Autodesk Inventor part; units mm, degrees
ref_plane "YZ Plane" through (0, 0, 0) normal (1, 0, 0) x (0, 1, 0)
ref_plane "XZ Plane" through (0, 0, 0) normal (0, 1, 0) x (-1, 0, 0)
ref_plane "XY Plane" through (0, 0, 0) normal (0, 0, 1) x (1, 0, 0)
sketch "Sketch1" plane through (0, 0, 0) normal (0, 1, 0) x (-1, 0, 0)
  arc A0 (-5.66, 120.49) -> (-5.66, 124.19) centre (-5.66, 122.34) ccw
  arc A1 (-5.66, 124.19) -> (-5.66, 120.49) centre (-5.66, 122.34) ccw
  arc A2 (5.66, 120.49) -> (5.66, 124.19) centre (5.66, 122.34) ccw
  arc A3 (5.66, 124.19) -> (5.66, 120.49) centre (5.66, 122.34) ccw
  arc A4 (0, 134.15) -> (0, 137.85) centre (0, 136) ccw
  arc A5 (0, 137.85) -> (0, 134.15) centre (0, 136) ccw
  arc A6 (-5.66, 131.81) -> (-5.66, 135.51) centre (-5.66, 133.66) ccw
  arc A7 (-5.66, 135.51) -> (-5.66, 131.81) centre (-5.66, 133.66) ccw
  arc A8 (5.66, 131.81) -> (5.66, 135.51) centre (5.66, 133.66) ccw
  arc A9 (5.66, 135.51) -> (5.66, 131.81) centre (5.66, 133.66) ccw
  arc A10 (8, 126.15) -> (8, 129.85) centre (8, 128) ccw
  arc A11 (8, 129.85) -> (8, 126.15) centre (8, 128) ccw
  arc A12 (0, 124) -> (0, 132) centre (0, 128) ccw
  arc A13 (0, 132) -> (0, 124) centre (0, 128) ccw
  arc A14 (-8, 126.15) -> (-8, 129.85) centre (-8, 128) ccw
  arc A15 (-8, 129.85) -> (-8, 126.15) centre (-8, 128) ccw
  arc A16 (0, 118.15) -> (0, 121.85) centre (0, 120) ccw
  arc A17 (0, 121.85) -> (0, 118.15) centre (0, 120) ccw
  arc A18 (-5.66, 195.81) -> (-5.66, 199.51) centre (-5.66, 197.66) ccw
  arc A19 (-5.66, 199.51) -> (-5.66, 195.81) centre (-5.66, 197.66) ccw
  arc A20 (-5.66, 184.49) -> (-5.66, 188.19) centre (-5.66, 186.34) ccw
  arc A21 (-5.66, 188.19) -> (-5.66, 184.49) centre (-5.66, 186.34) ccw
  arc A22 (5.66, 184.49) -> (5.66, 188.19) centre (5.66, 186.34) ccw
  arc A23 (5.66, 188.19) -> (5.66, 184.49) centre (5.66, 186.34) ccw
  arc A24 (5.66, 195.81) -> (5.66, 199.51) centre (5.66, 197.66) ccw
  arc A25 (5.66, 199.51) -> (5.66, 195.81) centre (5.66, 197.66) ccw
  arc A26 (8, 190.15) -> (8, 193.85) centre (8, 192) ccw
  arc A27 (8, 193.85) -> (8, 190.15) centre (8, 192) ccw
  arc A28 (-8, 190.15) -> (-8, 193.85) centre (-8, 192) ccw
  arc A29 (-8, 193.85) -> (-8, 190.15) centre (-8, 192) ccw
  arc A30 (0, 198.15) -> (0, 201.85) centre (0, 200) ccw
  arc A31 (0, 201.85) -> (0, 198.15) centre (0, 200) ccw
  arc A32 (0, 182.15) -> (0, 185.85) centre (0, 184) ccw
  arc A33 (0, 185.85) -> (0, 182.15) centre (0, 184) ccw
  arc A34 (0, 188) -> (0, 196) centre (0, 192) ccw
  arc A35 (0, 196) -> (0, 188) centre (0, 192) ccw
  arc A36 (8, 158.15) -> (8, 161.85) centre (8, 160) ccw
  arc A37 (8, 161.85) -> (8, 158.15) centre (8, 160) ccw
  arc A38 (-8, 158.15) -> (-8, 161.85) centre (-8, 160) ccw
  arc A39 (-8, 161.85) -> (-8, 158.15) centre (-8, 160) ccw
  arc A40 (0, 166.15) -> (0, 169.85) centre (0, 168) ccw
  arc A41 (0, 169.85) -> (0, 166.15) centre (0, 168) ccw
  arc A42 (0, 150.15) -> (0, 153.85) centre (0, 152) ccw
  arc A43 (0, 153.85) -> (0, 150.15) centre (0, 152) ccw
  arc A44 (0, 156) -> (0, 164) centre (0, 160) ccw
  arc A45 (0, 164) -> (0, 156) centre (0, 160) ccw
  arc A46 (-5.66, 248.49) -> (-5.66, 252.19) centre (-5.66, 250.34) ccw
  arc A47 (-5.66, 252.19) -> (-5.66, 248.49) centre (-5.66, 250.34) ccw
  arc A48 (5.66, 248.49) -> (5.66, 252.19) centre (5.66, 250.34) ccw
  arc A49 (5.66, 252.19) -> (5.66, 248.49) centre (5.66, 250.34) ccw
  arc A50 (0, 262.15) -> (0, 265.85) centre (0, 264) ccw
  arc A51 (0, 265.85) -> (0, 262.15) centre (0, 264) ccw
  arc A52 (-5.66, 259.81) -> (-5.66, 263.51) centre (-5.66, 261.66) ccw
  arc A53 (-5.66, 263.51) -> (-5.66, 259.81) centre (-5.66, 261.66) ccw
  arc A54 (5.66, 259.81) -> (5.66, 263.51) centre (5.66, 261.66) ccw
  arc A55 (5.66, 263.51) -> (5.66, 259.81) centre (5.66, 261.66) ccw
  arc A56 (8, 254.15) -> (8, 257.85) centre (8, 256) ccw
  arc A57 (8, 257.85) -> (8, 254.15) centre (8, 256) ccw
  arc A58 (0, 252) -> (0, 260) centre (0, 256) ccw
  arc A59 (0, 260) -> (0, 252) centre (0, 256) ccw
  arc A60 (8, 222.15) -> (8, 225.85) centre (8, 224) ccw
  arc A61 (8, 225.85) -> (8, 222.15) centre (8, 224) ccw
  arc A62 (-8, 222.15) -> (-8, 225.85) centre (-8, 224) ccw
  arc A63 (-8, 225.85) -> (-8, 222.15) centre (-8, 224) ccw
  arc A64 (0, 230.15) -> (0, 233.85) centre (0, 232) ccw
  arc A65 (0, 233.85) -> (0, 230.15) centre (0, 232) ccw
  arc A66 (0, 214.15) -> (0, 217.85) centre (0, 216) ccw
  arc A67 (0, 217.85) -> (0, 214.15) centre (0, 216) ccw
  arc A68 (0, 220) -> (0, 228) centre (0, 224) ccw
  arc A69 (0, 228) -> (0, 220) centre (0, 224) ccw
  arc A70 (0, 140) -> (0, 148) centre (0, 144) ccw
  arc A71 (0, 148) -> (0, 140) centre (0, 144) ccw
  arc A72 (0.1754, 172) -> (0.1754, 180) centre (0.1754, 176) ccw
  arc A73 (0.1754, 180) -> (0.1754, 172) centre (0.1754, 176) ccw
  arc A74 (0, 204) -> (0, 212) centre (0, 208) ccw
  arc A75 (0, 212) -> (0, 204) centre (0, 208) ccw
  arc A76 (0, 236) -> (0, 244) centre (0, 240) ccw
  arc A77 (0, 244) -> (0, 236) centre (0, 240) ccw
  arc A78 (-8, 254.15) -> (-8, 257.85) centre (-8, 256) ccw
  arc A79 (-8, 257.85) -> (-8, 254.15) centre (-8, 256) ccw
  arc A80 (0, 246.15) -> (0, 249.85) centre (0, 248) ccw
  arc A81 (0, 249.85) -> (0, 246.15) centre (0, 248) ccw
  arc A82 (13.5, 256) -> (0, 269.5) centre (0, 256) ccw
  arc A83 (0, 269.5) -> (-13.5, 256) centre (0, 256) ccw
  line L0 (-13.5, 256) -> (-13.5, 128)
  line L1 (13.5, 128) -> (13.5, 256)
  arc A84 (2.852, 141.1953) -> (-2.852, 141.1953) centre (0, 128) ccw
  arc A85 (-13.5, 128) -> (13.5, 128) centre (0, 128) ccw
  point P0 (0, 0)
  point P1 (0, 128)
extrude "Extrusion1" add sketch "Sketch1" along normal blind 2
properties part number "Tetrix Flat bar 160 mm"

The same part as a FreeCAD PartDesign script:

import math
import FreeCAD as App
import Part
import Sketcher
from FreeCAD import Vector

doc = App.newDocument("Part")
body = doc.addObject("PartDesign::Body", "Body")

sketch1 = body.newObject("Sketcher::SketchObject", "Sketch")
sketch1.AttachmentSupport = (doc.getObject("XZ_Plane"), [""])
sketch1.MapMode = "FlatFace"
sketch1.addGeometry(Part.LineSegment(Vector(-13.5, 128, 0), Vector(-13.5, 256, 0)), False)
sketch1.addGeometry(Part.ArcOfCircle(Part.Circle(Vector(0, 256, 0), Vector(0, 0, 1), 13.5), math.radians(0), math.radians(180)), False)
sketch1.addGeometry(Part.LineSegment(Vector(13.5, 256, 0), Vector(13.5, 128, 0)), False)
sketch1.addGeometry(Part.ArcOfCircle(Part.Circle(Vector(0, 128, 0), Vector(0, 0, 1), 13.5), math.radians(180), math.radians(360)), False)
sketch1.addGeometry(Part.Circle(Vector(8, 128, 0), Vector(0, 0, 1), 1.8), False)
sketch1.addGeometry(Part.Circle(Vector(5.7, 122.3, 0), Vector(0, 0, 1), 1.8), False)
sketch1.addGeometry(Part.Circle(Vector(5.7, 133.7, 0), Vector(0, 0, 1), 1.8), False)
sketch1.addGeometry(Part.Circle(Vector(8, 160, 0), Vector(0, 0, 1), 1.8), False)
sketch1.addGeometry(Part.Circle(Vector(5.7, 186.3, 0), Vector(0, 0, 1), 1.8), False)
sketch1.addGeometry(Part.Circle(Vector(0, 120, 0), Vector(0, 0, 1), 1.8), False)
sketch1.addGeometry(Part.Circle(Vector(0, 128, 0), Vector(0, 0, 1), 4), False)
sketch1.addGeometry(Part.Circle(Vector(-5.7, 122.3, 0), Vector(0, 0, 1), 1.8), False)
sketch1.addGeometry(Part.Circle(Vector(-5.7, 133.7, 0), Vector(0, 0, 1), 1.8), False)
sketch1.addGeometry(Part.Circle(Vector(0, 136, 0), Vector(0, 0, 1), 1.8), False)
sketch1.addGeometry(Part.Circle(Vector(0, 144, 0), Vector(0, 0, 1), 4), False)
sketch1.addGeometry(Part.Circle(Vector(0, 152, 0), Vector(0, 0, 1), 1.8), False)
sketch1.addGeometry(Part.Circle(Vector(-8, 128, 0), Vector(0, 0, 1), 1.8), False)
sketch1.addGeometry(Part.Circle(Vector(0, 160, 0), Vector(0, 0, 1), 4), False)
sketch1.addGeometry(Part.Circle(Vector(0, 168, 0), Vector(0, 0, 1), 1.8), False)
sketch1.addGeometry(Part.Circle(Vector(-0.2, 176, 0), Vector(0, 0, 1), 4), False)
sketch1.addGeometry(Part.Circle(Vector(0, 184, 0), Vector(0, 0, 1), 1.8), False)
sketch1.addGeometry(Part.Circle(Vector(-5.7, 186.3, 0), Vector(0, 0, 1), 1.8), False)
sketch1.addGeometry(Part.Circle(Vector(-8, 160, 0), Vector(0, 0, 1), 1.8), False)
sketch1.addGeometry(Part.Circle(Vector(8, 192, 0), Vector(0, 0, 1), 1.8), False)
sketch1.addGeometry(Part.Circle(Vector(8, 224, 0), Vector(0, 0, 1), 1.8), False)
sketch1.addGeometry(Part.Circle(Vector(5.7, 197.7, 0), Vector(0, 0, 1), 1.8), False)
sketch1.addGeometry(Part.Circle(Vector(8, 256, 0), Vector(0, 0, 1), 1.8), False)
sketch1.addGeometry(Part.Circle(Vector(5.7, 250.3, 0), Vector(0, 0, 1), 1.8), False)
sketch1.addGeometry(Part.Circle(Vector(5.7, 261.7, 0), Vector(0, 0, 1), 1.9), False)
sketch1.addGeometry(Part.Circle(Vector(0, 192, 0), Vector(0, 0, 1), 4), False)
sketch1.addGeometry(Part.Circle(Vector(0, 200, 0), Vector(0, 0, 1), 1.8), False)
sketch1.addGeometry(Part.Circle(Vector(0, 208, 0), Vector(0, 0, 1), 4), False)
sketch1.addGeometry(Part.Circle(Vector(-5.7, 197.7, 0), Vector(0, 0, 1), 1.8), False)
sketch1.addGeometry(Part.Circle(Vector(0, 216, 0), Vector(0, 0, 1), 1.8), False)
sketch1.addGeometry(Part.Circle(Vector(0, 224, 0), Vector(0, 0, 1), 4), False)
sketch1.addGeometry(Part.Circle(Vector(-8, 192, 0), Vector(0, 0, 1), 1.8), False)
sketch1.addGeometry(Part.Circle(Vector(-8, 224, 0), Vector(0, 0, 1), 1.8), False)
sketch1.addGeometry(Part.Circle(Vector(0, 232, 0), Vector(0, 0, 1), 1.8), False)
sketch1.addGeometry(Part.Circle(Vector(0, 240, 0), Vector(0, 0, 1), 4), False)
sketch1.addGeometry(Part.Circle(Vector(0, 248, 0), Vector(0, 0, 1), 1.8), False)
sketch1.addGeometry(Part.Circle(Vector(0, 256, 0), Vector(0, 0, 1), 4), False)
sketch1.addGeometry(Part.Circle(Vector(0, 264, 0), Vector(0, 0, 1), 1.9), False)
sketch1.addGeometry(Part.Circle(Vector(-5.7, 250.3, 0), Vector(0, 0, 1), 1.8), False)
sketch1.addGeometry(Part.Circle(Vector(-5.7, 261.7, 0), Vector(0, 0, 1), 1.9), False)
sketch1.addGeometry(Part.Circle(Vector(-8, 256, 0), Vector(0, 0, 1), 1.8), False)
sketch1.addConstraint(Sketcher.Constraint("Tangent", 0, 2, 1, 2))
sketch1.addConstraint(Sketcher.Constraint("Tangent", 1, 1, 2, 1))
sketch1.addConstraint(Sketcher.Constraint("Tangent", 2, 2, 3, 2))
sketch1.addConstraint(Sketcher.Constraint("Tangent", 3, 1, 0, 1))
sketch1.addConstraint(Sketcher.Constraint("Vertical", 0))
sketch1.addConstraint(Sketcher.Constraint("Vertical", 2))
sketch1.addConstraint(Sketcher.Constraint("Coincident", 10, 3, 3, 3))
sketch1.addConstraint(Sketcher.Constraint("Coincident", 40, 3, 1, 3))
sketch1.addConstraint(Sketcher.Constraint("Equal", 4, 5))
sketch1.addConstraint(Sketcher.Constraint("Equal", 5, 6))
sketch1.addConstraint(Sketcher.Constraint("Equal", 6, 7))
sketch1.addConstraint(Sketcher.Constraint("Equal", 7, 8))
sketch1.addConstraint(Sketcher.Constraint("Equal", 8, 9))
sketch1.addConstraint(Sketcher.Constraint("Equal", 9, 11))
sketch1.addConstraint(Sketcher.Constraint("Equal", 11, 12))
sketch1.addConstraint(Sketcher.Constraint("Equal", 12, 13))
sketch1.addConstraint(Sketcher.Constraint("Equal", 10, 14))
sketch1.addConstraint(Sketcher.Constraint("Equal", 13, 15))
sketch1.addConstraint(Sketcher.Constraint("Equal", 15, 16))
sketch1.addConstraint(Sketcher.Constraint("Equal", 14, 17))
sketch1.addConstraint(Sketcher.Constraint("Equal", 16, 18))
sketch1.addConstraint(Sketcher.Constraint("Equal", 17, 19))
sketch1.addConstraint(Sketcher.Constraint("Equal", 18, 20))
sketch1.addConstraint(Sketcher.Constraint("Equal", 20, 21))
sketch1.addConstraint(Sketcher.Constraint("Equal", 21, 22))
sketch1.addConstraint(Sketcher.Constraint("Equal", 22, 23))
sketch1.addConstraint(Sketcher.Constraint("Equal", 23, 24))
sketch1.addConstraint(Sketcher.Constraint("Equal", 24, 25))
sketch1.addConstraint(Sketcher.Constraint("Equal", 25, 26))
sketch1.addConstraint(Sketcher.Constraint("Equal", 26, 27))
sketch1.addConstraint(Sketcher.Constraint("Equal", 27, 28))
sketch1.addConstraint(Sketcher.Constraint("Equal", 19, 29))
sketch1.addConstraint(Sketcher.Constraint("Equal", 28, 30))
sketch1.addConstraint(Sketcher.Constraint("Equal", 29, 31))
sketch1.addConstraint(Sketcher.Constraint("Equal", 30, 32))
sketch1.addConstraint(Sketcher.Constraint("Equal", 32, 33))
sketch1.addConstraint(Sketcher.Constraint("Equal", 31, 34))
sketch1.addConstraint(Sketcher.Constraint("Equal", 33, 35))
sketch1.addConstraint(Sketcher.Constraint("Equal", 35, 36))
sketch1.addConstraint(Sketcher.Constraint("Equal", 36, 37))
sketch1.addConstraint(Sketcher.Constraint("Equal", 34, 38))
sketch1.addConstraint(Sketcher.Constraint("Equal", 37, 39))
sketch1.addConstraint(Sketcher.Constraint("Equal", 38, 40))
sketch1.addConstraint(Sketcher.Constraint("Equal", 39, 41))
sketch1.addConstraint(Sketcher.Constraint("Equal", 41, 42))
sketch1.addConstraint(Sketcher.Constraint("Equal", 42, 43))
sketch1.addConstraint(Sketcher.Constraint("Equal", 43, 44))
sketch1.addConstraint(Sketcher.Constraint("Symmetric", 5, 3, 11, 3, -2))
sketch1.addConstraint(Sketcher.Constraint("Symmetric", 6, 3, 12, 3, -2))
sketch1.addConstraint(Sketcher.Constraint("Symmetric", 4, 3, 16, 3, -2))
sketch1.addConstraint(Sketcher.Constraint("Symmetric", 8, 3, 21, 3, -2))
sketch1.addConstraint(Sketcher.Constraint("Symmetric", 7, 3, 22, 3, -2))
sketch1.addConstraint(Sketcher.Constraint("Symmetric", 25, 3, 32, 3, -2))
sketch1.addConstraint(Sketcher.Constraint("Symmetric", 23, 3, 35, 3, -2))
sketch1.addConstraint(Sketcher.Constraint("Symmetric", 24, 3, 36, 3, -2))
sketch1.addConstraint(Sketcher.Constraint("Symmetric", 27, 3, 42, 3, -2))
sketch1.addConstraint(Sketcher.Constraint("Symmetric", 28, 3, 43, 3, -2))
sketch1.addConstraint(Sketcher.Constraint("Symmetric", 26, 3, 44, 3, -2))
sketch1.addConstraint(Sketcher.Constraint("PointOnObject", 1, 3, -2))
sketch1.addConstraint(Sketcher.Constraint("PointOnObject", 9, 3, -2))
sketch1.addConstraint(Sketcher.Constraint("PointOnObject", 13, 3, -2))
sketch1.addConstraint(Sketcher.Constraint("PointOnObject", 14, 3, -2))
sketch1.addConstraint(Sketcher.Constraint("PointOnObject", 15, 3, -2))
sketch1.addConstraint(Sketcher.Constraint("PointOnObject", 17, 3, -2))
sketch1.addConstraint(Sketcher.Constraint("PointOnObject", 18, 3, -2))
sketch1.addConstraint(Sketcher.Constraint("PointOnObject", 20, 3, -2))
sketch1.addConstraint(Sketcher.Constraint("PointOnObject", 29, 3, -2))
sketch1.addConstraint(Sketcher.Constraint("PointOnObject", 30, 3, -2))
sketch1.addConstraint(Sketcher.Constraint("PointOnObject", 31, 3, -2))
sketch1.addConstraint(Sketcher.Constraint("PointOnObject", 33, 3, -2))
sketch1.addConstraint(Sketcher.Constraint("PointOnObject", 34, 3, -2))
sketch1.addConstraint(Sketcher.Constraint("PointOnObject", 37, 3, -2))
sketch1.addConstraint(Sketcher.Constraint("PointOnObject", 38, 3, -2))
sketch1.addConstraint(Sketcher.Constraint("PointOnObject", 39, 3, -2))
sketch1.addConstraint(Sketcher.Constraint("PointOnObject", 41, 3, -2))
sketch1.addConstraint(Sketcher.Constraint("Horizontal", 3, 3, 4, 3))
sketch1.addConstraint(Sketcher.Constraint("Horizontal", 7, 3, 17, 3))
sketch1.addConstraint(Sketcher.Constraint("Horizontal", 1, 3, 26, 3))
sketch1.addConstraint(Sketcher.Constraint("Horizontal", 23, 3, 29, 3))
sketch1.addConstraint(Sketcher.Constraint("Horizontal", 24, 3, 34, 3))
sketch1.addConstraint(Sketcher.Constraint("Vertical", 5, 3, 6, 3))
sketch1.addConstraint(Sketcher.Constraint("Vertical", 4, 3, 7, 3))
sketch1.addConstraint(Sketcher.Constraint("Vertical", 6, 3, 8, 3))
sketch1.addConstraint(Sketcher.Constraint("Vertical", 7, 3, 23, 3))
sketch1.addConstraint(Sketcher.Constraint("Vertical", 23, 3, 24, 3))
sketch1.addConstraint(Sketcher.Constraint("Vertical", 8, 3, 25, 3))
sketch1.addConstraint(Sketcher.Constraint("Vertical", 24, 3, 26, 3))
sketch1.addConstraint(Sketcher.Constraint("Vertical", 25, 3, 27, 3))
sketch1.addConstraint(Sketcher.Constraint("Vertical", 27, 3, 28, 3))
sketch1.addConstraint(Sketcher.Constraint("Diameter", 10, 8.0))
sketch1.addConstraint(Sketcher.Constraint("Diameter", 4, 3.7))
sketch1.addConstraint(Sketcher.Constraint("Radius", 1, 13.5))
sketch1.addConstraint(Sketcher.Constraint("DistanceY", 0, 1, 0, 2, 128.0))
sketch1.addConstraint(Sketcher.Constraint("DistanceY", -1, 1, 1, 3, 256.0))
sketch1.addConstraint(Sketcher.Constraint("DistanceX", -1, 1, 4, 3, 8.0))
sketch1.addConstraint(Sketcher.Constraint("DistanceY", -1, 1, 7, 3, 160.0))
sketch1.addConstraint(Sketcher.Constraint("DistanceY", -1, 1, 9, 3, 120.0))
sketch1.addConstraint(Sketcher.Constraint("DistanceY", -1, 1, 13, 3, 136.0))
sketch1.addConstraint(Sketcher.Constraint("DistanceY", -1, 1, 14, 3, 144.0))
sketch1.addConstraint(Sketcher.Constraint("DistanceY", -1, 1, 15, 3, 152.0))
sketch1.addConstraint(Sketcher.Constraint("DistanceY", -1, 1, 18, 3, 168.0))
sketch1.addConstraint(Sketcher.Constraint("DistanceY", -1, 1, 19, 3, 176.0))
sketch1.addConstraint(Sketcher.Constraint("DistanceY", -1, 1, 20, 3, 184.0))
sketch1.addConstraint(Sketcher.Constraint("DistanceY", -1, 1, 23, 3, 192.0))
sketch1.addConstraint(Sketcher.Constraint("DistanceY", -1, 1, 24, 3, 224.0))
sketch1.addConstraint(Sketcher.Constraint("DistanceY", -1, 1, 30, 3, 200.0))
sketch1.addConstraint(Sketcher.Constraint("DistanceY", -1, 1, 31, 3, 208.0))
sketch1.addConstraint(Sketcher.Constraint("DistanceY", -1, 1, 33, 3, 216.0))
sketch1.addConstraint(Sketcher.Constraint("DistanceY", -1, 1, 37, 3, 232.0))
sketch1.addConstraint(Sketcher.Constraint("DistanceY", -1, 1, 38, 3, 240.0))
sketch1.addConstraint(Sketcher.Constraint("DistanceY", -1, 1, 39, 3, 248.0))
sketch1.addConstraint(Sketcher.Constraint("DistanceY", -1, 1, 41, 3, 264.0))
sketch1.addConstraint(Sketcher.Constraint("DistanceY", 5, 3, 8, 3, 64.0))
sketch1.addConstraint(Sketcher.Constraint("DistanceY", 25, 3, 28, 3, 64.0))
sketch1.addConstraint(Sketcher.Constraint("DistanceX", -1, 1, 5, 3, 5.66))
sketch1.addConstraint(Sketcher.Constraint("DistanceY", -1, 1, 5, 3, 122.34))
sketch1.addConstraint(Sketcher.Constraint("DistanceY", -1, 1, 6, 3, 133.66))
sketch1.addConstraint(Sketcher.Constraint("DistanceY", -1, 1, 25, 3, 197.66))
sketch1.addConstraint(Sketcher.Constraint("DistanceY", -1, 1, 27, 3, 250.34))
sketch1.addConstraint(Sketcher.Constraint("DistanceX", 19, 3, -1, 1, 0.1754))
pad1 = body.newObject("PartDesign::Pad", "Pad")
pad1.Profile = sketch1
pad1.Length = 2
pad1.Reversed = True

doc.recompute()
